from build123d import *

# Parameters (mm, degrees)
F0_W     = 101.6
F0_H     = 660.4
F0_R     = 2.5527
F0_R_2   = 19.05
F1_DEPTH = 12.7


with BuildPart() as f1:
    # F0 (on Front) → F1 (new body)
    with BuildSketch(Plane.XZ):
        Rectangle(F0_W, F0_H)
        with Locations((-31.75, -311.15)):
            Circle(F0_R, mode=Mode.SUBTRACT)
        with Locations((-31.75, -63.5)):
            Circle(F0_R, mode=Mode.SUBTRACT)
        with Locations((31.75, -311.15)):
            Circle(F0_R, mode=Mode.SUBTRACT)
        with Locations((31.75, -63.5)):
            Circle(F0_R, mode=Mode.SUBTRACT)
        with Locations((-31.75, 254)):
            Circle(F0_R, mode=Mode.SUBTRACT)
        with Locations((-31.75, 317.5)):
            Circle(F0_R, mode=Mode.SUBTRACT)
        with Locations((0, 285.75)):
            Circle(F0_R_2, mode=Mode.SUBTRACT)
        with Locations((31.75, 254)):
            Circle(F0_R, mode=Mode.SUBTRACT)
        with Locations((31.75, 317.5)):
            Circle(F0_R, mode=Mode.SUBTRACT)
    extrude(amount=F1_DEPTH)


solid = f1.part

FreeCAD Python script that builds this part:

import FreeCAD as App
import Part
import Sketcher

V = App.Vector
Q = App.Units.Quantity


def add_polygon(sketch, points):
    """Adds a closed chain of lines whose ends are joined by coincident constraints."""
    first, n = sketch.GeometryCount, len(points)
    for a, b in zip(points, points[1:] + points[:1]):
        sketch.addGeometry(Part.LineSegment(App.Vector(*a, 0), App.Vector(*b, 0)), False)
    for i in range(n):
        sketch.addConstraint(Sketcher.Constraint("Coincident", first + i, 2, first + (i + 1) % n, 1))

doc = App.newDocument("Part")
params = doc.addObject("Spreadsheet::Sheet", "Params")
for row, (alias, value) in enumerate([
    ("sketch1_diameter", "1.5 in"),
    ("sketch1_width", "4 in"),
    ("sketch1_height", "26 in"),
    ("sketch1_diameter2", "0.201 in"),
    ("pad1_length", "0.5 in"),
], start=1):
    params.set(f"A{row}", alias)
    params.set(f"B{row}", "=" + value)
    params.setAlias(f"B{row}", alias)

body = doc.addObject("PartDesign::Body", "Body")

# Sketch on XZ plane
sketch1 = body.newObject("Sketcher::SketchObject", "Sketch")
sketch1.AttachmentSupport = (doc.getObject("XZ_Plane"), [""])
sketch1.MapMode = "FlatFace"
add_polygon(sketch1, [(-50.8, 330.2), (-50.8, -330.2), (50.8, -330.2), (50.8, 330.2)])  # lines 0-3
sketch1.addGeometry(Part.Circle(V(-31.75, -311.15, 0), V(0, 0, 1), 2.5527), False)  # 4
sketch1.addGeometry(Part.Circle(V(-31.75, -63.5, 0), V(0, 0, 1), 2.5527), False)  # 5
sketch1.addGeometry(Part.Circle(V(31.75, -311.15, 0), V(0, 0, 1), 2.5527), False)  # 6
sketch1.addGeometry(Part.Circle(V(31.75, -63.5, 0), V(0, 0, 1), 2.5527), False)  # 7
sketch1.addGeometry(Part.Circle(V(-31.75, 254, 0), V(0, 0, 1), 2.5527), False)  # 8
sketch1.addGeometry(Part.Circle(V(-31.75, 317.5, 0), V(0, 0, 1), 2.5527), False)  # 9
sketch1.addGeometry(Part.Circle(V(0, 285.75, 0), V(0, 0, 1), 19.05), False)  # 10
sketch1.addGeometry(Part.Circle(V(31.75, 254, 0), V(0, 0, 1), 2.5527), False)  # 11
sketch1.addGeometry(Part.Circle(V(31.75, 317.5, 0), V(0, 0, 1), 2.5527), False)  # 12
sketch1.addConstraint(Sketcher.Constraint("Vertical", 0))
sketch1.addConstraint(Sketcher.Constraint("Horizontal", 1))
sketch1.addConstraint(Sketcher.Constraint("Vertical", 2))
sketch1.addConstraint(Sketcher.Constraint("Horizontal", 3))
sketch1.addConstraint(Sketcher.Constraint("Equal", 4, 5))
sketch1.addConstraint(Sketcher.Constraint("Equal", 5, 6))
sketch1.addConstraint(Sketcher.Constraint("Equal", 6, 7))
sketch1.addConstraint(Sketcher.Constraint("Equal", 7, 8))
sketch1.addConstraint(Sketcher.Constraint("Equal", 8, 9))
sketch1.addConstraint(Sketcher.Constraint("Equal", 9, 11))
sketch1.addConstraint(Sketcher.Constraint("Equal", 11, 12))
sketch1.addConstraint(Sketcher.Constraint("Symmetric", 0, 2, 2, 2, -1, 1))
sketch1.addConstraint(Sketcher.Constraint("Symmetric", 4, 3, 6, 3, -2))
sketch1.addConstraint(Sketcher.Constraint("Symmetric", 5, 3, 7, 3, -2))
sketch1.addConstraint(Sketcher.Constraint("Symmetric", 8, 3, 11, 3, -2))
sketch1.addConstraint(Sketcher.Constraint("Symmetric", 9, 3, 12, 3, -2))
sketch1.addConstraint(Sketcher.Constraint("PointOnObject", 10, 3, -2))
sketch1.addConstraint(Sketcher.Constraint("Vertical", 4, 3, 5, 3))
sketch1.addConstraint(Sketcher.Constraint("Vertical", 5, 3, 8, 3))
sketch1.addConstraint(Sketcher.Constraint("Vertical", 8, 3, 9, 3))
sketch1.addConstraint(Sketcher.Constraint("Diameter", 10, Q("1.5 in")))
sketch1.addConstraint(Sketcher.Constraint("DistanceX", 1, 1, 1, 2, Q("4 in")))
sketch1.addConstraint(Sketcher.Constraint("DistanceY", 0, 2, 0, 1, Q("26 in")))
sketch1.addConstraint(Sketcher.Constraint("Diameter", 4, Q("0.201 in")))
sketch1.addConstraint(Sketcher.Constraint("DistanceY", -1, 1, 8, 3, Q("10 in")))
sketch1.addConstraint(Sketcher.Constraint("DistanceY", 5, 3, 9, 3, Q("15 in")))
sketch1.addConstraint(Sketcher.Constraint("DistanceY", 5, 3, -1, 1, Q("2.5 in")))
sketch1.addConstraint(Sketcher.Constraint("DistanceX", 4, 3, 6, 3, Q("2.5 in")))
sketch1.addConstraint(Sketcher.Constraint("DistanceY", 4, 3, 10, 3, Q("23.5 in")))
sketch1.addConstraint(Sketcher.Constraint("DistanceY", 4, 3, -1, 1, Q("12.25 in")))
sketch1.setExpression("Constraints[24]", "Params.sketch1_diameter")
sketch1.setExpression("Constraints[25]", "Params.sketch1_width")
sketch1.setExpression("Constraints[26]", "Params.sketch1_height")
sketch1.setExpression("Constraints[27]", "Params.sketch1_diameter2")
pad1 = body.newObject("PartDesign::Pad", "Pad")
pad1.Profile = sketch1
pad1.setExpression("Length", "Params.pad1_length")

doc.recompute()
